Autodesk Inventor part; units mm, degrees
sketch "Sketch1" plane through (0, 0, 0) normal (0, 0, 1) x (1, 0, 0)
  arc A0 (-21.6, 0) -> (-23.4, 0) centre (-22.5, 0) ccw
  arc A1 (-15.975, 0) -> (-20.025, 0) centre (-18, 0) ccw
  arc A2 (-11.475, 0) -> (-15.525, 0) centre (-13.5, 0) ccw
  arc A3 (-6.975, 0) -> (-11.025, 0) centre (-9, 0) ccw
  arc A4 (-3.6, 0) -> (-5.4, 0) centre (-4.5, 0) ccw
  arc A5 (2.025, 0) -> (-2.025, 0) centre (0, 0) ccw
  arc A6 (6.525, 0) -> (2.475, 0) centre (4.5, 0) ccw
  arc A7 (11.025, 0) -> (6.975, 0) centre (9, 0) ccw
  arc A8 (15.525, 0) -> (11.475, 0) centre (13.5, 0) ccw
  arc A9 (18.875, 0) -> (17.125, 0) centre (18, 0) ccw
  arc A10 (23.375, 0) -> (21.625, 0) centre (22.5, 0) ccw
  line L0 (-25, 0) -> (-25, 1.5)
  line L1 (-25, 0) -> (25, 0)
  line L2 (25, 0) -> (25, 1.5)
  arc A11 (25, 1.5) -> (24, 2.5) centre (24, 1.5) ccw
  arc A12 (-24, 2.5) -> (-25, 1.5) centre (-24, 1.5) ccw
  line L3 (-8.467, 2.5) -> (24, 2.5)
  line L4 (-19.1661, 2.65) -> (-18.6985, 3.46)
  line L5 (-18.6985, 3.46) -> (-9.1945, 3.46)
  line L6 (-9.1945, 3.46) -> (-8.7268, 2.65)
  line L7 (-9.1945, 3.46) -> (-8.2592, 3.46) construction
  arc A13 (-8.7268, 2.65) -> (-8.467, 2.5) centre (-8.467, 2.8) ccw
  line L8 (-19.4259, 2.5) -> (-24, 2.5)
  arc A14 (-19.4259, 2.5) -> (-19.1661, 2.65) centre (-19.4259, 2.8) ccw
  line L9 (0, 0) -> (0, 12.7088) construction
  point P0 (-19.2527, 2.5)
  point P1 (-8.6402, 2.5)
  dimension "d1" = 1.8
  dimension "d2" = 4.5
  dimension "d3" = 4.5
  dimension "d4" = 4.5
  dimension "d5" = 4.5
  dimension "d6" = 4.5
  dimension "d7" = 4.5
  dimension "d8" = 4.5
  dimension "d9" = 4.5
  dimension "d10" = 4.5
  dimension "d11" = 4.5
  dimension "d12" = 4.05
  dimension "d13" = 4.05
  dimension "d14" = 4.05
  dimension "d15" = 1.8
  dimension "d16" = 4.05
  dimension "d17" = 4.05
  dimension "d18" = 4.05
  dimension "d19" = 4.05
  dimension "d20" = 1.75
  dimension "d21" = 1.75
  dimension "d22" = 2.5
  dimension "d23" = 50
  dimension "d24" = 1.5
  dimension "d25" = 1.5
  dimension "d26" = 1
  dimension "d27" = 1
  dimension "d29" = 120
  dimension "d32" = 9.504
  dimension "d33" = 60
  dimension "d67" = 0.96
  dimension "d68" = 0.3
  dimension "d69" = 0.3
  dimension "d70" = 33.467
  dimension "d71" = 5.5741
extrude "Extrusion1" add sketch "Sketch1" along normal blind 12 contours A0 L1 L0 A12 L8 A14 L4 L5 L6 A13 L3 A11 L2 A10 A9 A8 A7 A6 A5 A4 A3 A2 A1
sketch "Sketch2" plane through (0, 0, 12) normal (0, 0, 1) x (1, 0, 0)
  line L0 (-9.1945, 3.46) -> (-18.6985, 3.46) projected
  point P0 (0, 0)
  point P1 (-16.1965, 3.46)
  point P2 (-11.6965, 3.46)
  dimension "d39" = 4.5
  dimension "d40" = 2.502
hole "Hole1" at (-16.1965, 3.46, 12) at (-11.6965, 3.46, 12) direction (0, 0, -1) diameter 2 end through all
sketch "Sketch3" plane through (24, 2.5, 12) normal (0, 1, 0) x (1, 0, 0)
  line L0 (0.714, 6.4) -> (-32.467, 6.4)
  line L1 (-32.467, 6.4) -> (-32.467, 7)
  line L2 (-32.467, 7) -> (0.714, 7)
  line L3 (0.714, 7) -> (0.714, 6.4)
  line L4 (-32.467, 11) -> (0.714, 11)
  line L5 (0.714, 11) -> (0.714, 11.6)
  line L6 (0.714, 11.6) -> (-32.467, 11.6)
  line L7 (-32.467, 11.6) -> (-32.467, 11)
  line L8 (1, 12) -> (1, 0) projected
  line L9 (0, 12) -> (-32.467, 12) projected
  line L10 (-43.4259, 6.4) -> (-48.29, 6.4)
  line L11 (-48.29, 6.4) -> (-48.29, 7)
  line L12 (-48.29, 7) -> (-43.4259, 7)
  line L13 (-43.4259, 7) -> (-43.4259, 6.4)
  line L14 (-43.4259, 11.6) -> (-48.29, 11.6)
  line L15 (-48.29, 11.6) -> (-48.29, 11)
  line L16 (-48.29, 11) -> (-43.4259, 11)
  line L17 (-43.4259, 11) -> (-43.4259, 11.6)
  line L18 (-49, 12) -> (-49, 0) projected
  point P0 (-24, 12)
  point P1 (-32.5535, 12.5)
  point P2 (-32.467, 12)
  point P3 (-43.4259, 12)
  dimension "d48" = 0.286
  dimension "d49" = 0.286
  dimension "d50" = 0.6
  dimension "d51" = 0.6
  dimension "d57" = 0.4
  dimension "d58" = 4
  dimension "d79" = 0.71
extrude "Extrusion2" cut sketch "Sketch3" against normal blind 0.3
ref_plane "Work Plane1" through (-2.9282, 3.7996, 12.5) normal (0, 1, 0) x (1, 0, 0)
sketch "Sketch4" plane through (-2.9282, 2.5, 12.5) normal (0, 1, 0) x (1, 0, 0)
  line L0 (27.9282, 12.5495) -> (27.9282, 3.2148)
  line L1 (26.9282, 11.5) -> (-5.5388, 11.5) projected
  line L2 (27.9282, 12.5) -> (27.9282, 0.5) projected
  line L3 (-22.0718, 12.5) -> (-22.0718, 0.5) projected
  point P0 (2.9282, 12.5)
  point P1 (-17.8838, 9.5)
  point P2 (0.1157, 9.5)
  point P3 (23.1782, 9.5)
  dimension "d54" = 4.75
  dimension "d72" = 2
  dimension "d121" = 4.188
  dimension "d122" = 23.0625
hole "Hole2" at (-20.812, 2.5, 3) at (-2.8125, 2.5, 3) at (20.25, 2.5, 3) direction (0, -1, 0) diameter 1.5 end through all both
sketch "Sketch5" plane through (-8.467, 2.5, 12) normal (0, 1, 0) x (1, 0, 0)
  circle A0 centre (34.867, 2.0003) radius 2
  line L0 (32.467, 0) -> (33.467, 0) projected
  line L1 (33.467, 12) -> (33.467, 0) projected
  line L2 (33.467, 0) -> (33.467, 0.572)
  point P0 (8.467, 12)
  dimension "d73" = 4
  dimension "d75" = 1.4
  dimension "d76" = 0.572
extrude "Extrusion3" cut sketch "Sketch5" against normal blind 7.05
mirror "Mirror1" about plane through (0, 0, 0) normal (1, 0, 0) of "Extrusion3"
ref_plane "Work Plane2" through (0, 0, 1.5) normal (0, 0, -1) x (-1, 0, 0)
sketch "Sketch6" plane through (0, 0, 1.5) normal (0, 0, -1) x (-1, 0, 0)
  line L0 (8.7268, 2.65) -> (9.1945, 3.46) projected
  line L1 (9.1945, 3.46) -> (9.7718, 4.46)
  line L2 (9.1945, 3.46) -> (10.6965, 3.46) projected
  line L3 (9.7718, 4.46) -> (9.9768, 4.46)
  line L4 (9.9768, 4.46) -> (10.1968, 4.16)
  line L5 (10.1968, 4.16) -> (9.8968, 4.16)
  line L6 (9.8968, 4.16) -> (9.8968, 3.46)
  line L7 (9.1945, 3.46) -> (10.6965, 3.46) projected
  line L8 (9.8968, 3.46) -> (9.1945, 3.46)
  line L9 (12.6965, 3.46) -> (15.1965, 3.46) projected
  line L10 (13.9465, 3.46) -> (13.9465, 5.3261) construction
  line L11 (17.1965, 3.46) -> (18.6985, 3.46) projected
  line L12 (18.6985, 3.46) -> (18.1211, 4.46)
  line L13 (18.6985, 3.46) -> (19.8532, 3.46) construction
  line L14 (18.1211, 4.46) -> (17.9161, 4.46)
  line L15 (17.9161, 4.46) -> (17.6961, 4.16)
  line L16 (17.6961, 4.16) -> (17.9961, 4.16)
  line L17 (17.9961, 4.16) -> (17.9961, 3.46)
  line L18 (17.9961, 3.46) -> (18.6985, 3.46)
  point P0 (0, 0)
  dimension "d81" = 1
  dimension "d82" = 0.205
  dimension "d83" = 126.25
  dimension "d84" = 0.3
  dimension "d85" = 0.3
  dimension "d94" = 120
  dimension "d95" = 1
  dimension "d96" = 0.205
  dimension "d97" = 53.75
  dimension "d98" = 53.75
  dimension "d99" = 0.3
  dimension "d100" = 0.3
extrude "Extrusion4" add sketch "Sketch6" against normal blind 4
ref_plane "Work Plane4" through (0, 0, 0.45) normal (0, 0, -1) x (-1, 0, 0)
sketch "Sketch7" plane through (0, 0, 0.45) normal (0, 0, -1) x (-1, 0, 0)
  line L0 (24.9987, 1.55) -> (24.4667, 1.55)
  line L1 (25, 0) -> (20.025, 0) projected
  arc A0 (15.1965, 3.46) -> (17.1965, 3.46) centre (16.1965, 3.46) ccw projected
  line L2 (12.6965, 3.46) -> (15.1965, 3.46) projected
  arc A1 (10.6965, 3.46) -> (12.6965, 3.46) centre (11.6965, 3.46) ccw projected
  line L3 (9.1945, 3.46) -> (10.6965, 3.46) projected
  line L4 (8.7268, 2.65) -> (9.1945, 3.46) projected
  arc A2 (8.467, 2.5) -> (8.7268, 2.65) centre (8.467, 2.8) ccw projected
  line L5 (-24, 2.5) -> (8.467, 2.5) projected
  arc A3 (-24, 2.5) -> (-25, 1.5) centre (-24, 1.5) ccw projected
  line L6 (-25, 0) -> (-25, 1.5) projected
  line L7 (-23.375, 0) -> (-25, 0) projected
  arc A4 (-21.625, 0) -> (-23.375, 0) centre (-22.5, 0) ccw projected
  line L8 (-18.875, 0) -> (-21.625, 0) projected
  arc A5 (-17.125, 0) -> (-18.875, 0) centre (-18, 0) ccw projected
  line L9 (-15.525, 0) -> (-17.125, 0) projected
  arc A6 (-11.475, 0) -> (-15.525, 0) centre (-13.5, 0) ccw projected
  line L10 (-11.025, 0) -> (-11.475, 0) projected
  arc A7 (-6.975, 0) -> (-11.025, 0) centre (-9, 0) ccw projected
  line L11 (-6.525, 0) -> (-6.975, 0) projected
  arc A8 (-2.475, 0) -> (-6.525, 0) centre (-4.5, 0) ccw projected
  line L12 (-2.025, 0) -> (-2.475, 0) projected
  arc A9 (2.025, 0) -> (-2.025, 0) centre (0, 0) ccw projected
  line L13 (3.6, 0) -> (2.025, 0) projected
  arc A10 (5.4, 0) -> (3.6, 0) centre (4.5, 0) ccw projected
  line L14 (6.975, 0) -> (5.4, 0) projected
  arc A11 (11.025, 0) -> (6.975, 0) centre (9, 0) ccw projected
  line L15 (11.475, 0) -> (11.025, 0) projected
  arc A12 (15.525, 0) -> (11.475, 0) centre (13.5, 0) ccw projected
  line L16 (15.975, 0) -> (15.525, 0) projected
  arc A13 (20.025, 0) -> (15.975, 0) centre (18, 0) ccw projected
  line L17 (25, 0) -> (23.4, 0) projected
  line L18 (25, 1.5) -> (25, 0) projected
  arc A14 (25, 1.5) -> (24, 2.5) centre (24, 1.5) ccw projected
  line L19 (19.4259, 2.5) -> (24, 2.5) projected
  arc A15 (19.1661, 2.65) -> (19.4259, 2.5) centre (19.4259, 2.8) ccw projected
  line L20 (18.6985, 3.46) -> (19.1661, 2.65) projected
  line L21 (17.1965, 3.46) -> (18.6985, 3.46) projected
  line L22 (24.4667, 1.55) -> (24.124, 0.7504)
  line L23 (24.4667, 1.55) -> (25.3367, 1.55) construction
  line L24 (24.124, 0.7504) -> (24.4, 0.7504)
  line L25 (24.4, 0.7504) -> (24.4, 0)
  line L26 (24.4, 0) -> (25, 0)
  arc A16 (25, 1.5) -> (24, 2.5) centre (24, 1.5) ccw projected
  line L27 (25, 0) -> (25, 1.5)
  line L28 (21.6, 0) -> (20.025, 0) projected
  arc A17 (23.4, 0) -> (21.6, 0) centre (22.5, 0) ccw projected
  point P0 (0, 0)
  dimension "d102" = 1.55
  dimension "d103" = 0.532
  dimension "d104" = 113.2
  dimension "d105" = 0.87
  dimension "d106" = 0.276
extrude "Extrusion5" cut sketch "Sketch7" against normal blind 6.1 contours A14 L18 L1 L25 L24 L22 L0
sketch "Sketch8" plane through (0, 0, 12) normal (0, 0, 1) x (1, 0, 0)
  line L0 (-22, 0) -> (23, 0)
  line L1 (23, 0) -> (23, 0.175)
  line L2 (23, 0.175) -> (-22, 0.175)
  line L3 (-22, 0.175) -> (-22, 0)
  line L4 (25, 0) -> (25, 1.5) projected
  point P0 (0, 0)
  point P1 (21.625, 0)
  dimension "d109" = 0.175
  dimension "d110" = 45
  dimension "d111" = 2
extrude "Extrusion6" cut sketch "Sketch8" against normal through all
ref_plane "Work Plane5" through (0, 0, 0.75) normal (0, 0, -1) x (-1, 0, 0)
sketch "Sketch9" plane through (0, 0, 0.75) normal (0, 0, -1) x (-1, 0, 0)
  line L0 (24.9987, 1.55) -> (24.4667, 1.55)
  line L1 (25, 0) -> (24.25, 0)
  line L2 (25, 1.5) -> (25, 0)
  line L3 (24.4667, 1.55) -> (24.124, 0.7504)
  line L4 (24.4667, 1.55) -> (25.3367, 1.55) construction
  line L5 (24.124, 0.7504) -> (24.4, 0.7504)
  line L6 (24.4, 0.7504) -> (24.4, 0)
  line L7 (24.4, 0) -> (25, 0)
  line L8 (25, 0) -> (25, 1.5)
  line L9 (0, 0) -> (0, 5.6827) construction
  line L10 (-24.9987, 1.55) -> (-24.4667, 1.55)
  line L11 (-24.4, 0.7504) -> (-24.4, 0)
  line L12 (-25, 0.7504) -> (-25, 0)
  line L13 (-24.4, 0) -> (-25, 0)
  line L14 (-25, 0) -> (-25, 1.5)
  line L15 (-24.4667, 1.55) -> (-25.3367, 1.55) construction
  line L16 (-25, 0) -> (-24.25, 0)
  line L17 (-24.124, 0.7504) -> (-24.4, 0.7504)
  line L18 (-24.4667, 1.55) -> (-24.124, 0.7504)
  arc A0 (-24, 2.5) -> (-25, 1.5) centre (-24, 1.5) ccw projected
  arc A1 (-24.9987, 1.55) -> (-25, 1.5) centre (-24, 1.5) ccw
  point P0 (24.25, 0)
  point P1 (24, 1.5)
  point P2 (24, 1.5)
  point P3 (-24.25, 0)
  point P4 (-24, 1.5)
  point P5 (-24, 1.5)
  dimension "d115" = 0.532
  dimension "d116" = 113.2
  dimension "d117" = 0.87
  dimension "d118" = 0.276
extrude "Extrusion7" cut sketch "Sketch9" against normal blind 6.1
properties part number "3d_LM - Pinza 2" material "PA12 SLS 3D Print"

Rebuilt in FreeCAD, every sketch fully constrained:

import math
import FreeCAD as App
import Part
import Sketcher

V = App.Vector
Q = App.Units.Quantity

doc = App.newDocument("Part")
body = doc.addObject("PartDesign::Body", "Body")

# Sketch on XY plane
sketch1 = doc.addObject("Sketcher::SketchObject", "Sketch")
body.addObject(sketch1)
sketch1.AttachmentSupport = (doc.XY_Plane, [""])
sketch1.MapMode = "FlatFace"
sketch1.addGeometry(Part.ArcOfCircle(Part.Circle(V(-22.5, 0, 0), V(0, 0, 1), 0.9), math.radians(0), math.radians(180)), False)
sketch1.addGeometry(Part.LineSegment(V(-21.6, 0, 0), V(-20.025, 0, 0)), False)
sketch1.addGeometry(Part.ArcOfCircle(Part.Circle(V(-18, 0, 0), V(0, 0, 1), 2.025), math.radians(0), math.radians(180)), False)
sketch1.addGeometry(Part.LineSegment(V(-15.975, 0, 0), V(-15.525, 0, 0)), False)
sketch1.addGeometry(Part.ArcOfCircle(Part.Circle(V(-13.5, 0, 0), V(0, 0, 1), 2.025), math.radians(0), math.radians(180)), False)
sketch1.addGeometry(Part.LineSegment(V(-11.475, 0, 0), V(-11.025, 0, 0)), False)
sketch1.addGeometry(Part.ArcOfCircle(Part.Circle(V(-9, 0, 0), V(0, 0, 1), 2.025), math.radians(0), math.radians(180)), False)
sketch1.addGeometry(Part.LineSegment(V(-6.975, 0, 0), V(-5.4, 0, 0)), False)
sketch1.addGeometry(Part.ArcOfCircle(Part.Circle(V(-4.5, 0, 0), V(0, 0, 1), 0.9), math.radians(0), math.radians(180)), False)
sketch1.addGeometry(Part.LineSegment(V(-3.6, 0, 0), V(-2.025, 0, 0)), False)
sketch1.addGeometry(Part.ArcOfCircle(Part.Circle(V(0, 0, 0), V(0, 0, 1), 2.025), math.radians(0), math.radians(180)), False)
sketch1.addGeometry(Part.LineSegment(V(2.025, 0, 0), V(2.475, 0, 0)), False)
sketch1.addGeometry(Part.ArcOfCircle(Part.Circle(V(4.5, 0, 0), V(0, 0, 1), 2.025), math.radians(0), math.radians(180)), False)
sketch1.addGeometry(Part.LineSegment(V(6.525, 0, 0), V(6.975, 0, 0)), False)
sketch1.addGeometry(Part.ArcOfCircle(Part.Circle(V(9, 0, 0), V(0, 0, 1), 2.025), math.radians(0), math.radians(180)), False)
sketch1.addGeometry(Part.LineSegment(V(11.025, 0, 0), V(11.475, 0, 0)), False)
sketch1.addGeometry(Part.ArcOfCircle(Part.Circle(V(13.5, 0, 0), V(0, 0, 1), 2.025), math.radians(0), math.radians(180)), False)
sketch1.addGeometry(Part.LineSegment(V(15.525, 0, 0), V(17.125, 0, 0)), False)
sketch1.addGeometry(Part.ArcOfCircle(Part.Circle(V(18, 0, 0), V(0, 0, 1), 0.875), math.radians(0), math.radians(180)), False)
sketch1.addGeometry(Part.LineSegment(V(18.875, 0, 0), V(21.625, 0, 0)), False)
sketch1.addGeometry(Part.ArcOfCircle(Part.Circle(V(22.5, 0, 0), V(0, 0, 1), 0.875), math.radians(0), math.radians(180)), False)
sketch1.addGeometry(Part.LineSegment(V(23.375, 0, 0), V(25, 0, 0)), False)
sketch1.addGeometry(Part.LineSegment(V(25, 0, 0), V(25, 1.5, 0)), False)
sketch1.addGeometry(Part.ArcOfCircle(Part.Circle(V(24, 1.5, 0), V(0, 0, 1), 1), math.radians(0), math.radians(90)), False)
sketch1.addGeometry(Part.LineSegment(V(24, 2.5, 0), V(-8.467, 2.5, 0)), False)
sketch1.addGeometry(Part.ArcOfCircle(Part.Circle(V(-8.467, 2.8, 0), V(0, 0, 1), 0.299993), math.radians(-149.999272), math.radians(-90)), False)
sketch1.addGeometry(Part.LineSegment(V(-8.7268, 2.65, 0), V(-9.1945, 3.46, 0)), False)
sketch1.addGeometry(Part.LineSegment(V(-9.1945, 3.46, 0), V(-18.6985, 3.46, 0)), False)
sketch1.addGeometry(Part.LineSegment(V(-18.6985, 3.46, 0), V(-19.1661, 2.65, 0)), False)
sketch1.addGeometry(Part.ArcOfCircle(Part.Circle(V(-19.4259, 2.8, 0), V(0, 0, 1), 0.3), math.radians(-90), math.radians(-30.000728)), False)
sketch1.addGeometry(Part.LineSegment(V(-19.4259, 2.5, 0), V(-24, 2.5, 0)), False)
sketch1.addGeometry(Part.ArcOfCircle(Part.Circle(V(-24, 1.5, 0), V(0, 0, 1), 1), math.radians(90), math.radians(180)), False)
sketch1.addGeometry(Part.LineSegment(V(-25, 1.5, 0), V(-25, 0, 0)), False)
sketch1.addGeometry(Part.LineSegment(V(-25, 0, 0), V(-23.4, 0, 0)), False)
sketch1.addConstraint(Sketcher.Constraint("Coincident", 0, 1, 1, 1))
sketch1.addConstraint(Sketcher.Constraint("Coincident", 1, 2, 2, 2))
sketch1.addConstraint(Sketcher.Constraint("Coincident", 2, 1, 3, 1))
sketch1.addConstraint(Sketcher.Constraint("Coincident", 3, 2, 4, 2))
sketch1.addConstraint(Sketcher.Constraint("Coincident", 4, 1, 5, 1))
sketch1.addConstraint(Sketcher.Constraint("Coincident", 5, 2, 6, 2))
sketch1.addConstraint(Sketcher.Constraint("Coincident", 6, 1, 7, 1))
sketch1.addConstraint(Sketcher.Constraint("Coincident", 7, 2, 8, 2))
sketch1.addConstraint(Sketcher.Constraint("Coincident", 8, 1, 9, 1))
sketch1.addConstraint(Sketcher.Constraint("Coincident", 9, 2, 10, 2))
sketch1.addConstraint(Sketcher.Constraint("Coincident", 10, 1, 11, 1))
sketch1.addConstraint(Sketcher.Constraint("Coincident", 11, 2, 12, 2))
sketch1.addConstraint(Sketcher.Constraint("Coincident", 12, 1, 13, 1))
sketch1.addConstraint(Sketcher.Constraint("Coincident", 13, 2, 14, 2))
sketch1.addConstraint(Sketcher.Constraint("Coincident", 14, 1, 15, 1))
sketch1.addConstraint(Sketcher.Constraint("Coincident", 15, 2, 16, 2))
sketch1.addConstraint(Sketcher.Constraint("Coincident", 16, 1, 17, 1))
sketch1.addConstraint(Sketcher.Constraint("Coincident", 17, 2, 18, 2))
sketch1.addConstraint(Sketcher.Constraint("Coincident", 18, 1, 19, 1))
sketch1.addConstraint(Sketcher.Constraint("Coincident", 19, 2, 20, 2))
sketch1.addConstraint(Sketcher.Constraint("Coincident", 20, 1, 21, 1))
sketch1.addConstraint(Sketcher.Constraint("Coincident", 21, 2, 22, 1))
sketch1.addConstraint(Sketcher.Constraint("Tangent", 22, 2, 23, 1))
sketch1.addConstraint(Sketcher.Constraint("Tangent", 23, 2, 24, 1))
sketch1.addConstraint(Sketcher.Constraint("Tangent", 24, 2, 25, 2))
sketch1.addConstraint(Sketcher.Constraint("Tangent", 25, 1, 26, 1))
sketch1.addConstraint(Sketcher.Constraint("Coincident", 26, 2, 27, 1))
sketch1.addConstraint(Sketcher.Constraint("Coincident", 27, 2, 28, 1))
sketch1.addConstraint(Sketcher.Constraint("Tangent", 28, 2, 29, 2))
sketch1.addConstraint(Sketcher.Constraint("Tangent", 29, 1, 30, 1))
sketch1.addConstraint(Sketcher.Constraint("Tangent", 30, 2, 31, 1))
sketch1.addConstraint(Sketcher.Constraint("Tangent", 31, 2, 32, 1))
sketch1.addConstraint(Sketcher.Constraint("Coincident", 32, 2, 33, 1))
sketch1.addConstraint(Sketcher.Constraint("Coincident", 33, 2, 0, 2))
sketch1.addConstraint(Sketcher.Constraint("Horizontal", 1))
sketch1.addConstraint(Sketcher.Constraint("Horizontal", 3))
sketch1.addConstraint(Sketcher.Constraint("Horizontal", 5))
sketch1.addConstraint(Sketcher.Constraint("Horizontal", 7))
sketch1.addConstraint(Sketcher.Constraint("Horizontal", 9))
sketch1.addConstraint(Sketcher.Constraint("Horizontal", 11))
sketch1.addConstraint(Sketcher.Constraint("Horizontal", 13))
sketch1.addConstraint(Sketcher.Constraint("Horizontal", 15))
sketch1.addConstraint(Sketcher.Constraint("Horizontal", 17))
sketch1.addConstraint(Sketcher.Constraint("Horizontal", 19))
sketch1.addConstraint(Sketcher.Constraint("Horizontal", 21))
sketch1.addConstraint(Sketcher.Constraint("Vertical", 22))
sketch1.addConstraint(Sketcher.Constraint("Horizontal", 24))
sketch1.addConstraint(Sketcher.Constraint("Horizontal", 27))
sketch1.addConstraint(Sketcher.Constraint("Horizontal", 30))
sketch1.addConstraint(Sketcher.Constraint("Vertical", 32))
sketch1.addConstraint(Sketcher.Constraint("Horizontal", 33))
sketch1.addConstraint(Sketcher.Constraint("Coincident", 10, 3, -1, 1))
sketch1.addConstraint(Sketcher.Constraint("Equal", 2, 4))
sketch1.addConstraint(Sketcher.Constraint("Equal", 4, 6))
sketch1.addConstraint(Sketcher.Constraint("Equal", 0, 8))
sketch1.addConstraint(Sketcher.Constraint("Equal", 6, 10))
sketch1.addConstraint(Sketcher.Constraint("Equal", 10, 12))
sketch1.addConstraint(Sketcher.Constraint("Equal", 12, 14))
sketch1.addConstraint(Sketcher.Constraint("Equal", 14, 16))
sketch1.addConstraint(Sketcher.Constraint("Equal", 18, 20))
sketch1.addConstraint(Sketcher.Constraint("Equal", 25, 29))
sketch1.addConstraint(Sketcher.Constraint("Equal", 23, 31))
sketch1.addConstraint(Sketcher.Constraint("Symmetric", 8, 3, 12, 3, -1, 1))
sketch1.addConstraint(Sketcher.Constraint("Symmetric", 6, 3, 14, 3, -1, 1))
sketch1.addConstraint(Sketcher.Constraint("Symmetric", 4, 3, 16, 3, -1, 1))
sketch1.addConstraint(Sketcher.Constraint("Symmetric", 2, 3, 18, 3, -1, 1))
sketch1.addConstraint(Sketcher.Constraint("Symmetric", 0, 3, 20, 3, -1, 1))
sketch1.addConstraint(Sketcher.Constraint("Symmetric", 21, 2, 32, 2, -1, 1))
sketch1.addConstraint(Sketcher.Constraint("PointOnObject", 0, 3, -1))
sketch1.addConstraint(Sketcher.Constraint("PointOnObject", 2, 3, -1))
sketch1.addConstraint(Sketcher.Constraint("PointOnObject", 4, 3, -1))
sketch1.addConstraint(Sketcher.Constraint("PointOnObject", 6, 3, -1))
sketch1.addConstraint(Sketcher.Constraint("PointOnObject", 8, 3, -1))
sketch1.addConstraint(Sketcher.Constraint("PointOnObject", 0, 1, -1))
sketch1.addConstraint(Sketcher.Constraint("PointOnObject", 2, 1, -1))
sketch1.addConstraint(Sketcher.Constraint("PointOnObject", 4, 1, -1))
sketch1.addConstraint(Sketcher.Constraint("PointOnObject", 6, 1, -1))
sketch1.addConstraint(Sketcher.Constraint("PointOnObject", 8, 1, -1))
sketch1.addConstraint(Sketcher.Constraint("PointOnObject", 10, 1, -1))
sketch1.addConstraint(Sketcher.Constraint("PointOnObject", 12, 1, -1))
sketch1.addConstraint(Sketcher.Constraint("PointOnObject", 14, 1, -1))
sketch1.addConstraint(Sketcher.Constraint("PointOnObject", 16, 1, -1))
sketch1.addConstraint(Sketcher.Constraint("PointOnObject", 18, 1, -1))
sketch1.addConstraint(Sketcher.Constraint("PointOnObject", 20, 1, -1))
sketch1.addConstraint(Sketcher.Constraint("Horizontal", 25, 3, 29, 3))
sketch1.addConstraint(Sketcher.Constraint("Horizontal", 25, 1, 28, 2))
sketch1.addConstraint(Sketcher.Constraint("Equal", 3, 5))
sketch1.addConstraint(Sketcher.Constraint("Equal", 1, 7))
sketch1.addConstraint(Sketcher.Constraint("Equal", 7, 9))
sketch1.addConstraint(Sketcher.Constraint("Equal", 5, 11))
sketch1.addConstraint(Sketcher.Constraint("Equal", 17, 33))
sketch1.addConstraint(Sketcher.Constraint("Radius", 23, Q("1 mm")))
sketch1.addConstraint(Sketcher.Constraint("Radius", 0, Q("0.9 mm")))
sketch1.addConstraint(Sketcher.Constraint("Radius", 25, Q("0.3 mm")))
sketch1.addConstraint(Sketcher.Constraint("DistanceY", 22, 1, 22, 2, Q("1.5 mm")))
sketch1.addConstraint(Sketcher.Constraint("Radius", 2, Q("2.025 mm")))
sketch1.addConstraint(Sketcher.Constraint("Radius", 18, Q("0.875 mm")))
sketch1.addConstraint(Sketcher.Constraint("DistanceX", 8, 3, -1, 1, Q("4.5 mm")))
sketch1.addConstraint(Sketcher.Constraint("DistanceX", 27, 2, 27, 1, Q("9.504 mm")))
sketch1.addConstraint(Sketcher.Constraint("DistanceY", 24, 2, 26, 2, Q("0.96 mm")))
sketch1.addConstraint(Sketcher.Constraint("DistanceX", 24, 2, 24, 1, Q("32.467 mm")))
sketch1.addConstraint(Sketcher.Constraint("DistanceX", 30, 2, 30, 1, Q("4.574 mm")))
pad1 = doc.addObject("PartDesign::Pad", "Pad")
body.addObject(pad1)
pad1.Profile = sketch1
pad1.Length = 12

# Sketch on XY plane
sketch2 = doc.addObject("Sketcher::SketchObject", "Sketch001")
body.addObject(sketch2)
sketch2.AttachmentSupport = (doc.XY_Plane, [""])
sketch2.MapMode = "FlatFace"
sketch2.AttachmentOffset = App.Placement(V(0, 0, 12), App.Rotation())
sketch2.addGeometry(Part.Circle(V(-16.1965, 3.46, 0), V(0, 0, 1), 1), False)
sketch2.addGeometry(Part.Circle(V(-11.6965, 3.46, 0), V(0, 0, 1), 1), False)
sketch2.addConstraint(Sketcher.Constraint("Equal", 0, 1))
sketch2.addConstraint(Sketcher.Constraint("Horizontal", 0, 3, 1, 3))
sketch2.addConstraint(Sketcher.Constraint("Diameter", 0, Q("2 mm")))
sketch2.addConstraint(Sketcher.Constraint("DistanceX", 0, 3, 1, 3, Q("4.5 mm")))
sketch2.addConstraint(Sketcher.Constraint("DistanceY", -1, 1, 0, 3, Q("3.46 mm")))
sketch2.addConstraint(Sketcher.Constraint("DistanceX", 0, 3, -1, 1, Q("16.1965 mm")))
doc.recompute()
hole = doc.addObject("PartDesign::Hole", "Hole")
body.addObject(hole)
hole.Profile = sketch2
hole.ThreadType = "None"
hole.Diameter = 2
hole.DepthType = "ThroughAll"

# Sketch on XZ plane
sketch3 = doc.addObject("Sketcher::SketchObject", "Sketch002")
body.addObject(sketch3)
sketch3.AttachmentSupport = (doc.XZ_Plane, [""])
sketch3.MapMode = "FlatFace"
sketch3.AttachmentOffset = App.Placement(V(0, 0, -2.5), App.Rotation())
sketch3.addGeometry(Part.LineSegment(V(-8.467, 5.6, 0), V(24.714, 5.6, 0)), False)
sketch3.addGeometry(Part.LineSegment(V(24.714, 5.6, 0), V(24.714, 5, 0)), False)
sketch3.addGeometry(Part.LineSegment(V(24.714, 5, 0), V(-8.467, 5, 0)), False)
sketch3.addGeometry(Part.LineSegment(V(-8.467, 5, 0), V(-8.467, 5.6, 0)), False)
sketch3.addGeometry(Part.LineSegment(V(-8.467, 0.4, 0), V(-8.467, 1, 0)), False)
sketch3.addGeometry(Part.LineSegment(V(-8.467, 1, 0), V(24.714, 1, 0)), False)
sketch3.addGeometry(Part.LineSegment(V(24.714, 1, 0), V(24.714, 0.4, 0)), False)
sketch3.addGeometry(Part.LineSegment(V(24.714, 0.4, 0), V(-8.467, 0.4, 0)), False)
sketch3.addGeometry(Part.LineSegment(V(-24.29, 5.6, 0), V(-19.4259, 5.6, 0)), False)
sketch3.addGeometry(Part.LineSegment(V(-19.4259, 5.6, 0), V(-19.4259, 5, 0)), False)
sketch3.addGeometry(Part.LineSegment(V(-19.4259, 5, 0), V(-24.29, 5, 0)), False)
sketch3.addGeometry(Part.LineSegment(V(-24.29, 5, 0), V(-24.29, 5.6, 0)), False)
sketch3.addGeometry(Part.LineSegment(V(-19.4259, 1, 0), V(-19.4259, 0.4, 0)), False)
sketch3.addGeometry(Part.LineSegment(V(-19.4259, 0.4, 0), V(-24.29, 0.4, 0)), False)
sketch3.addGeometry(Part.LineSegment(V(-24.29, 0.4, 0), V(-24.29, 1, 0)), False)
sketch3.addGeometry(Part.LineSegment(V(-24.29, 1, 0), V(-19.4259, 1, 0)), False)
sketch3.addConstraint(Sketcher.Constraint("Coincident", 0, 2, 1, 1))
sketch3.addConstraint(Sketcher.Constraint("Coincident", 1, 2, 2, 1))
sketch3.addConstraint(Sketcher.Constraint("Coincident", 2, 2, 3, 1))
sketch3.addConstraint(Sketcher.Constraint("Coincident", 3, 2, 0, 1))
sketch3.addConstraint(Sketcher.Constraint("Coincident", 4, 2, 5, 1))
sketch3.addConstraint(Sketcher.Constraint("Coincident", 5, 2, 6, 1))
sketch3.addConstraint(Sketcher.Constraint("Coincident", 6, 2, 7, 1))
sketch3.addConstraint(Sketcher.Constraint("Coincident", 7, 2, 4, 1))
sketch3.addConstraint(Sketcher.Constraint("Coincident", 8, 2, 9, 1))
sketch3.addConstraint(Sketcher.Constraint("Coincident", 9, 2, 10, 1))
sketch3.addConstraint(Sketcher.Constraint("Coincident", 10, 2, 11, 1))
sketch3.addConstraint(Sketcher.Constraint("Coincident", 11, 2, 8, 1))
sketch3.addConstraint(Sketcher.Constraint("Coincident", 12, 2, 13, 1))
sketch3.addConstraint(Sketcher.Constraint("Coincident", 13, 2, 14, 1))
sketch3.addConstraint(Sketcher.Constraint("Coincident", 14, 2, 15, 1))
sketch3.addConstraint(Sketcher.Constraint("Coincident", 15, 2, 12, 1))
sketch3.addConstraint(Sketcher.Constraint("Horizontal", 0))
sketch3.addConstraint(Sketcher.Constraint("Vertical", 1))
sketch3.addConstraint(Sketcher.Constraint("Horizontal", 2))
sketch3.addConstraint(Sketcher.Constraint("Vertical", 3))
sketch3.addConstraint(Sketcher.Constraint("Vertical", 4))
sketch3.addConstraint(Sketcher.Constraint("Horizontal", 5))
sketch3.addConstraint(Sketcher.Constraint("Vertical", 6))
sketch3.addConstraint(Sketcher.Constraint("Horizontal", 7))
sketch3.addConstraint(Sketcher.Constraint("Horizontal", 8))
sketch3.addConstraint(Sketcher.Constraint("Vertical", 9))
sketch3.addConstraint(Sketcher.Constraint("Horizontal", 10))
sketch3.addConstraint(Sketcher.Constraint("Vertical", 11))
sketch3.addConstraint(Sketcher.Constraint("Vertical", 12))
sketch3.addConstraint(Sketcher.Constraint("Horizontal", 13))
sketch3.addConstraint(Sketcher.Constraint("Vertical", 14))
sketch3.addConstraint(Sketcher.Constraint("Horizontal", 15))
sketch3.addConstraint(Sketcher.Constraint("Horizontal", 3, 2, 8, 2))
sketch3.addConstraint(Sketcher.Constraint("Horizontal", 2, 2, 9, 2))
sketch3.addConstraint(Sketcher.Constraint("Horizontal", 7, 2, 12, 2))
sketch3.addConstraint(Sketcher.Constraint("Horizontal", 5, 2, 14, 2))
sketch3.addConstraint(Sketcher.Constraint("Vertical", 3, 2, 4, 2))
sketch3.addConstraint(Sketcher.Constraint("Vertical", 1, 2, 5, 2))
sketch3.addConstraint(Sketcher.Constraint("Vertical", 9, 2, 12, 2))
sketch3.addConstraint(Sketcher.Constraint("Vertical", 11, 2, 13, 2))
sketch3.addConstraint(Sketcher.Constraint("Equal", 3, 4))
sketch3.addConstraint(Sketcher.Constraint("DistanceY", 1, 2, 1, 1, Q("0.6 mm")))
sketch3.addConstraint(Sketcher.Constraint("DistanceY", 4, 2, 2, 2, Q("4 mm")))
sketch3.addConstraint(Sketcher.Constraint("DistanceY", -1, 1, 6, 2, Q("0.4 mm")))
sketch3.addConstraint(Sketcher.Constraint("DistanceX", 0, 1, 0, 2, Q("33.181 mm")))
sketch3.addConstraint(Sketcher.Constraint("DistanceX", 8, 1, 8, 2, Q("4.864 mm")))
sketch3.addConstraint(Sketcher.Constraint("DistanceX", 10, 2, -1, 1, Q("24.29 mm")))
sketch3.addConstraint(Sketcher.Constraint("DistanceX", 8, 2, 0, 2, Q("44.14 mm")))
pocket1 = doc.addObject("PartDesign::Pocket", "Pocket")
body.addObject(pocket1)
pocket1.Profile = sketch3
pocket1.Length = 0.3
pocket1.Reversed = True

# Sketch on XZ plane
sketch4 = doc.addObject("Sketcher::SketchObject", "Sketch003")
body.addObject(sketch4)
sketch4.AttachmentSupport = (doc.XZ_Plane, [""])
sketch4.MapMode = "FlatFace"
sketch4.AttachmentOffset = App.Placement(V(0, 0, -2.5), App.Rotation())
sketch4.addGeometry(Part.Circle(V(-20.812, 3, 0), V(0, 0, 1), 0.75), False)
sketch4.addGeometry(Part.Circle(V(-2.8125, 3, 0), V(0, 0, 1), 0.75), False)
sketch4.addGeometry(Part.Circle(V(20.25, 3, 0), V(0, 0, 1), 0.75), False)
sketch4.addConstraint(Sketcher.Constraint("Equal", 0, 1))
sketch4.addConstraint(Sketcher.Constraint("Equal", 1, 2))
sketch4.addConstraint(Sketcher.Constraint("Horizontal", 0, 3, 1, 3))
sketch4.addConstraint(Sketcher.Constraint("Horizontal", 1, 3, 2, 3))
sketch4.addConstraint(Sketcher.Constraint("Diameter", 0, Q("1.5 mm")))
sketch4.addConstraint(Sketcher.Constraint("DistanceY", -1, 1, 0, 3, Q("3 mm")))
sketch4.addConstraint(Sketcher.Constraint("DistanceX", -1, 1, 2, 3, Q("20.25 mm")))
sketch4.addConstraint(Sketcher.Constraint("DistanceX", 0, 3, -1, 1, Q("20.812 mm")))
sketch4.addConstraint(Sketcher.Constraint("DistanceX", 1, 3, -1, 1, Q("2.8125 mm")))
doc.recompute()
hole2 = doc.addObject("PartDesign::Hole", "Hole001")
body.addObject(hole2)
hole2.Profile = sketch4
hole2.ThreadType = "None"
hole2.Diameter = 1.5
hole2.DepthType = "ThroughAll"
hole2.Reversed = True

# Sketch on XZ plane
sketch5 = doc.addObject("Sketcher::SketchObject", "Sketch004")
body.addObject(sketch5)
sketch5.AttachmentSupport = (doc.XZ_Plane, [""])
sketch5.MapMode = "FlatFace"
sketch5.AttachmentOffset = App.Placement(V(0, 0, -2.5), App.Rotation())
sketch5.addGeometry(Part.Circle(V(26.4, 9.9997, 0), V(0, 0, 1), 2), False)
sketch5.addConstraint(Sketcher.Constraint("Diameter", 0, Q("4 mm")))
sketch5.addConstraint(Sketcher.Constraint("DistanceX", -1, 1, 0, 3, Q("26.4 mm")))
sketch5.addConstraint(Sketcher.Constraint("DistanceY", -1, 1, 0, 3, Q("9.9997 mm")))
pocket2 = doc.addObject("PartDesign::Pocket", "Pocket001")
body.addObject(pocket2)
pocket2.Profile = sketch5
pocket2.Length = 7.05
pocket2.Reversed = True
doc.recompute()

mirrored = doc.addObject("PartDesign::Mirrored", "Mirrored")
body.addObject(mirrored)
mirrored.Originals = [pocket2]
mirrored.MirrorPlane = (doc.YZ_Plane, [""])
body.Tip = mirrored

# Sketch on XY plane
sketch6 = doc.addObject("Sketcher::SketchObject", "Sketch005")
body.addObject(sketch6)
sketch6.AttachmentSupport = (doc.XY_Plane, [""])
sketch6.MapMode = "FlatFace"
sketch6.AttachmentOffset = App.Placement(V(0, 0, 1.5), App.Rotation())
sketch6.addGeometry(Part.LineSegment(V(-9.7718, 4.46, 0), V(-9.1945, 3.46, 0)), False)
sketch6.addGeometry(Part.LineSegment(V(-9.1945, 3.46, 0), V(-9.8968, 3.46, 0)), False)
sketch6.addGeometry(Part.LineSegment(V(-9.8968, 3.46, 0), V(-9.8968, 4.16, 0)), False)
sketch6.addGeometry(Part.LineSegment(V(-9.8968, 4.16, 0), V(-10.1968, 4.16, 0)), False)
sketch6.addGeometry(Part.LineSegment(V(-10.1968, 4.16, 0), V(-9.9768, 4.46, 0)), False)
sketch6.addGeometry(Part.LineSegment(V(-9.9768, 4.46, 0), V(-9.7718, 4.46, 0)), False)
sketch6.addGeometry(Part.LineSegment(V(-17.9961, 4.16, 0), V(-17.9961, 3.46, 0)), False)
sketch6.addGeometry(Part.LineSegment(V(-17.9961, 3.46, 0), V(-18.6985, 3.46, 0)), False)
sketch6.addGeometry(Part.LineSegment(V(-18.6985, 3.46, 0), V(-18.1211, 4.46, 0)), False)
sketch6.addGeometry(Part.LineSegment(V(-18.1211, 4.46, 0), V(-17.9161, 4.46, 0)), False)
sketch6.addGeometry(Part.LineSegment(V(-17.9161, 4.46, 0), V(-17.6961, 4.16, 0)), False)
sketch6.addGeometry(Part.LineSegment(V(-17.6961, 4.16, 0), V(-17.9961, 4.16, 0)), False)
sketch6.addConstraint(Sketcher.Constraint("Coincident", 0, 2, 1, 1))
sketch6.addConstraint(Sketcher.Constraint("Coincident", 1, 2, 2, 1))
sketch6.addConstraint(Sketcher.Constraint("Coincident", 2, 2, 3, 1))
sketch6.addConstraint(Sketcher.Constraint("Coincident", 3, 2, 4, 1))
sketch6.addConstraint(Sketcher.Constraint("Coincident", 4, 2, 5, 1))
sketch6.addConstraint(Sketcher.Constraint("Coincident", 5, 2, 0, 1))
sketch6.addConstraint(Sketcher.Constraint("Coincident", 6, 2, 7, 1))
sketch6.addConstraint(Sketcher.Constraint("Coincident", 7, 2, 8, 1))
sketch6.addConstraint(Sketcher.Constraint("Coincident", 8, 2, 9, 1))
sketch6.addConstraint(Sketcher.Constraint("Coincident", 9, 2, 10, 1))
sketch6.addConstraint(Sketcher.Constraint("Coincident", 10, 2, 11, 1))
sketch6.addConstraint(Sketcher.Constraint("Coincident", 11, 2, 6, 1))
sketch6.addConstraint(Sketcher.Constraint("Horizontal", 1))
sketch6.addConstraint(Sketcher.Constraint("Vertical", 2))
sketch6.addConstraint(Sketcher.Constraint("Horizontal", 3))
sketch6.addConstraint(Sketcher.Constraint("Horizontal", 5))
sketch6.addConstraint(Sketcher.Constraint("Vertical", 6))
sketch6.addConstraint(Sketcher.Constraint("Horizontal", 7))
sketch6.addConstraint(Sketcher.Constraint("Horizontal", 9))
sketch6.addConstraint(Sketcher.Constraint("Horizontal", 11))
sketch6.addConstraint(Sketcher.Constraint("Horizontal", 1, 2, 6, 2))
sketch6.addConstraint(Sketcher.Constraint("Horizontal", 5, 2, 8, 2))
sketch6.addConstraint(Sketcher.Constraint("Horizontal", 3, 2, 10, 2))
sketch6.addConstraint(Sketcher.Constraint("Equal", 1, 7))
sketch6.addConstraint(Sketcher.Constraint("Equal", 5, 9))
sketch6.addConstraint(Sketcher.Constraint("Equal", 3, 11))
sketch6.addConstraint(Sketcher.Constraint("Equal", 0, 8))
sketch6.addConstraint(Sketcher.Constraint("DistanceX", 3, 2, 3, 1, Q("0.3 mm")))
sketch6.addConstraint(Sketcher.Constraint("DistanceY", 1, 2, 4, 2, Q("1 mm")))
sketch6.addConstraint(Sketcher.Constraint("DistanceY", 2, 2, 4, 2, Q("0.3 mm")))
sketch6.addConstraint(Sketcher.Constraint("DistanceX", 5, 1, 5, 2, Q("0.205 mm")))
sketch6.addConstraint(Sketcher.Constraint("DistanceY", -1, 1, 0, 2, Q("3.46 mm")))
sketch6.addConstraint(Sketcher.Constraint("DistanceX", 4, 2, 2, 2, Q("0.08 mm")))
sketch6.addConstraint(Sketcher.Constraint("DistanceX", 1, 2, 1, 1, Q("0.7023 mm")))
sketch6.addConstraint(Sketcher.Constraint("DistanceX", 6, 2, -1, 1, Q("17.996 mm")))
sketch6.addConstraint(Sketcher.Constraint("DistanceX", 0, 2, -1, 1, Q("9.1945 mm")))
pad2 = doc.addObject("PartDesign::Pad", "Pad001")
body.addObject(pad2)
pad2.Profile = sketch6
pad2.Length = 4

# Sketch on XY plane
sketch7 = doc.addObject("Sketcher::SketchObject", "Sketch006")
body.addObject(sketch7)
sketch7.AttachmentSupport = (doc.XY_Plane, [""])
sketch7.MapMode = "FlatFace"
sketch7.AttachmentOffset = App.Placement(V(0, 0, 0.45), App.Rotation())
sketch7.addGeometry(Part.ArcOfCircle(Part.Circle(V(-24, 1.5, 0), V(0, 0, 1), 1), math.radians(177.133875), math.radians(180)), False)
sketch7.addGeometry(Part.LineSegment(V(-24.9987, 1.55, 0), V(-24.4667, 1.55, 0)), False)
sketch7.addGeometry(Part.LineSegment(V(-24.4667, 1.55, 0), V(-24.124, 0.7504, 0)), False)
sketch7.addGeometry(Part.LineSegment(V(-24.124, 0.7504, 0), V(-24.4, 0.7504, 0)), False)
sketch7.addGeometry(Part.LineSegment(V(-24.4, 0.7504, 0), V(-24.4, 0, 0)), False)
sketch7.addGeometry(Part.LineSegment(V(-24.4, 0, 0), V(-25, 0, 0)), False)
sketch7.addGeometry(Part.LineSegment(V(-25, 0, 0), V(-25, 1.5, 0)), False)
sketch7.addConstraint(Sketcher.Constraint("Coincident", 0, 1, 1, 1))
sketch7.addConstraint(Sketcher.Constraint("Coincident", 1, 2, 2, 1))
sketch7.addConstraint(Sketcher.Constraint("Coincident", 2, 2, 3, 1))
sketch7.addConstraint(Sketcher.Constraint("Coincident", 3, 2, 4, 1))
sketch7.addConstraint(Sketcher.Constraint("Coincident", 4, 2, 5, 1))
sketch7.addConstraint(Sketcher.Constraint("Coincident", 5, 2, 6, 1))
sketch7.addConstraint(Sketcher.Constraint("Tangent", 6, 2, 0, 2))
sketch7.addConstraint(Sketcher.Constraint("Horizontal", 1))
sketch7.addConstraint(Sketcher.Constraint("Horizontal", 3))
sketch7.addConstraint(Sketcher.Constraint("Vertical", 4))
sketch7.addConstraint(Sketcher.Constraint("Horizontal", 5))
sketch7.addConstraint(Sketcher.Constraint("Vertical", 6))
sketch7.addConstraint(Sketcher.Constraint("PointOnObject", 4, 2, -1))
sketch7.addConstraint(Sketcher.Constraint("Radius", 0, Q("1 mm")))
sketch7.addConstraint(Sketcher.Constraint("Distance", 2, Q("0.87 mm")))
sketch7.addConstraint(Sketcher.Constraint("DistanceX", 1, 1, 1, 2, Q("0.532 mm")))
sketch7.addConstraint(Sketcher.Constraint("DistanceX", 3, 2, 3, 1, Q("0.276 mm")))
sketch7.addConstraint(Sketcher.Constraint("DistanceY", -1, 1, 0, 1, Q("1.55 mm")))
sketch7.addConstraint(Sketcher.Constraint("DistanceX", 5, 2, 5, 1, Q("0.6 mm")))
sketch7.addConstraint(Sketcher.Constraint("DistanceY", 6, 1, 6, 2, Q("1.5 mm")))
sketch7.addConstraint(Sketcher.Constraint("DistanceX", 0, 3, -1, 1, Q("24 mm")))
pocket3 = doc.addObject("PartDesign::Pocket", "Pocket002")
body.addObject(pocket3)
pocket3.Profile = sketch7
pocket3.Length = 6.1
pocket3.Reversed = True

# Sketch on XY plane
sketch8 = doc.addObject("Sketcher::SketchObject", "Sketch007")
body.addObject(sketch8)
sketch8.AttachmentSupport = (doc.XY_Plane, [""])
sketch8.MapMode = "FlatFace"
sketch8.AttachmentOffset = App.Placement(V(0, 0, 12), App.Rotation())
sketch8.addGeometry(Part.LineSegment(V(-22, 0.175, 0), V(-22, 0, 0)), False)
sketch8.addGeometry(Part.LineSegment(V(-22, 0, 0), V(23, 0, 0)), False)
sketch8.addGeometry(Part.LineSegment(V(23, 0, 0), V(23, 0.175, 0)), False)
sketch8.addGeometry(Part.LineSegment(V(23, 0.175, 0), V(-22, 0.175, 0)), False)
sketch8.addConstraint(Sketcher.Constraint("Coincident", 0, 2, 1, 1))
sketch8.addConstraint(Sketcher.Constraint("Coincident", 1, 2, 2, 1))
sketch8.addConstraint(Sketcher.Constraint("Coincident", 2, 2, 3, 1))
sketch8.addConstraint(Sketcher.Constraint("Coincident", 3, 2, 0, 1))
sketch8.addConstraint(Sketcher.Constraint("Vertical", 0))
sketch8.addConstraint(Sketcher.Constraint("Horizontal", 1))
sketch8.addConstraint(Sketcher.Constraint("Vertical", 2))
sketch8.addConstraint(Sketcher.Constraint("Horizontal", 3))
sketch8.addConstraint(Sketcher.Constraint("PointOnObject", 0, 2, -1))
sketch8.addConstraint(Sketcher.Constraint("DistanceX", 1, 1, 1, 2, Q("45 mm")))
sketch8.addConstraint(Sketcher.Constraint("DistanceY", 0, 2, 0, 1, Q("0.175 mm")))
sketch8.addConstraint(Sketcher.Constraint("DistanceX", 0, 2, -1, 1, Q("22 mm")))
pocket4 = doc.addObject("PartDesign::Pocket", "Pocket003")
body.addObject(pocket4)
pocket4.Profile = sketch8
pocket4.Type = "ThroughAll"

# Sketch on XY plane
sketch9 = doc.addObject("Sketcher::SketchObject", "Sketch008")
body.addObject(sketch9)
sketch9.AttachmentSupport = (doc.XY_Plane, [""])
sketch9.MapMode = "FlatFace"
sketch9.AttachmentOffset = App.Placement(V(0, 0, 0.75), App.Rotation())
sketch9.addGeometry(Part.LineSegment(V(24.4667, 1.55, 0), V(24.9987, 1.55, 0)), False)
sketch9.addGeometry(Part.ArcOfCircle(Part.Circle(V(24, 1.5, 0), V(0, 0, 1), 1), math.radians(0), math.radians(2.866125)), False)
sketch9.addGeometry(Part.LineSegment(V(25, 1.5, 0), V(25, 0, 0)), False)
sketch9.addGeometry(Part.LineSegment(V(25, 0, 0), V(24.4, 0, 0)), False)
sketch9.addGeometry(Part.LineSegment(V(24.4, 0, 0), V(24.4, 0.7504, 0)), False)
sketch9.addGeometry(Part.LineSegment(V(24.4, 0.7504, 0), V(24.124, 0.7504, 0)), False)
sketch9.addGeometry(Part.LineSegment(V(24.124, 0.7504, 0), V(24.4667, 1.55, 0)), False)
sketch9.addConstraint(Sketcher.Constraint("Coincident", 0, 2, 1, 2))
sketch9.addConstraint(Sketcher.Constraint("Tangent", 1, 1, 2, 1))
sketch9.addConstraint(Sketcher.Constraint("Coincident", 2, 2, 3, 1))
sketch9.addConstraint(Sketcher.Constraint("Coincident", 3, 2, 4, 1))
sketch9.addConstraint(Sketcher.Constraint("Coincident", 4, 2, 5, 1))
sketch9.addConstraint(Sketcher.Constraint("Coincident", 5, 2, 6, 1))
sketch9.addConstraint(Sketcher.Constraint("Coincident", 6, 2, 0, 1))
sketch9.addConstraint(Sketcher.Constraint("Horizontal", 0))
sketch9.addConstraint(Sketcher.Constraint("Vertical", 2))
sketch9.addConstraint(Sketcher.Constraint("Horizontal", 3))
sketch9.addConstraint(Sketcher.Constraint("Vertical", 4))
sketch9.addConstraint(Sketcher.Constraint("Horizontal", 5))
sketch9.addConstraint(Sketcher.Constraint("PointOnObject", 2, 2, -1))
sketch9.addConstraint(Sketcher.Constraint("Radius", 1, Q("1 mm")))
sketch9.addConstraint(Sketcher.Constraint("Distance", 6, Q("0.87 mm")))
sketch9.addConstraint(Sketcher.Constraint("DistanceX", 0, 1, 0, 2, Q("0.532 mm")))
sketch9.addConstraint(Sketcher.Constraint("DistanceX", 5, 2, 5, 1, Q("0.276 mm")))
sketch9.addConstraint(Sketcher.Constraint("DistanceX", 3, 2, 3, 1, Q("0.6 mm")))
sketch9.addConstraint(Sketcher.Constraint("DistanceY", 2, 2, 2, 1, Q("1.5 mm")))
sketch9.addConstraint(Sketcher.Constraint("DistanceX", -1, 1, 1, 3, Q("24 mm")))
sketch9.addConstraint(Sketcher.Constraint("Angle", 6, Q("66.8005 deg")))
pocket5 = doc.addObject("PartDesign::Pocket", "Pocket004")
body.addObject(pocket5)
pocket5.Profile = sketch9
pocket5.Length = 6.1
pocket5.Reversed = True

doc.recompute()
